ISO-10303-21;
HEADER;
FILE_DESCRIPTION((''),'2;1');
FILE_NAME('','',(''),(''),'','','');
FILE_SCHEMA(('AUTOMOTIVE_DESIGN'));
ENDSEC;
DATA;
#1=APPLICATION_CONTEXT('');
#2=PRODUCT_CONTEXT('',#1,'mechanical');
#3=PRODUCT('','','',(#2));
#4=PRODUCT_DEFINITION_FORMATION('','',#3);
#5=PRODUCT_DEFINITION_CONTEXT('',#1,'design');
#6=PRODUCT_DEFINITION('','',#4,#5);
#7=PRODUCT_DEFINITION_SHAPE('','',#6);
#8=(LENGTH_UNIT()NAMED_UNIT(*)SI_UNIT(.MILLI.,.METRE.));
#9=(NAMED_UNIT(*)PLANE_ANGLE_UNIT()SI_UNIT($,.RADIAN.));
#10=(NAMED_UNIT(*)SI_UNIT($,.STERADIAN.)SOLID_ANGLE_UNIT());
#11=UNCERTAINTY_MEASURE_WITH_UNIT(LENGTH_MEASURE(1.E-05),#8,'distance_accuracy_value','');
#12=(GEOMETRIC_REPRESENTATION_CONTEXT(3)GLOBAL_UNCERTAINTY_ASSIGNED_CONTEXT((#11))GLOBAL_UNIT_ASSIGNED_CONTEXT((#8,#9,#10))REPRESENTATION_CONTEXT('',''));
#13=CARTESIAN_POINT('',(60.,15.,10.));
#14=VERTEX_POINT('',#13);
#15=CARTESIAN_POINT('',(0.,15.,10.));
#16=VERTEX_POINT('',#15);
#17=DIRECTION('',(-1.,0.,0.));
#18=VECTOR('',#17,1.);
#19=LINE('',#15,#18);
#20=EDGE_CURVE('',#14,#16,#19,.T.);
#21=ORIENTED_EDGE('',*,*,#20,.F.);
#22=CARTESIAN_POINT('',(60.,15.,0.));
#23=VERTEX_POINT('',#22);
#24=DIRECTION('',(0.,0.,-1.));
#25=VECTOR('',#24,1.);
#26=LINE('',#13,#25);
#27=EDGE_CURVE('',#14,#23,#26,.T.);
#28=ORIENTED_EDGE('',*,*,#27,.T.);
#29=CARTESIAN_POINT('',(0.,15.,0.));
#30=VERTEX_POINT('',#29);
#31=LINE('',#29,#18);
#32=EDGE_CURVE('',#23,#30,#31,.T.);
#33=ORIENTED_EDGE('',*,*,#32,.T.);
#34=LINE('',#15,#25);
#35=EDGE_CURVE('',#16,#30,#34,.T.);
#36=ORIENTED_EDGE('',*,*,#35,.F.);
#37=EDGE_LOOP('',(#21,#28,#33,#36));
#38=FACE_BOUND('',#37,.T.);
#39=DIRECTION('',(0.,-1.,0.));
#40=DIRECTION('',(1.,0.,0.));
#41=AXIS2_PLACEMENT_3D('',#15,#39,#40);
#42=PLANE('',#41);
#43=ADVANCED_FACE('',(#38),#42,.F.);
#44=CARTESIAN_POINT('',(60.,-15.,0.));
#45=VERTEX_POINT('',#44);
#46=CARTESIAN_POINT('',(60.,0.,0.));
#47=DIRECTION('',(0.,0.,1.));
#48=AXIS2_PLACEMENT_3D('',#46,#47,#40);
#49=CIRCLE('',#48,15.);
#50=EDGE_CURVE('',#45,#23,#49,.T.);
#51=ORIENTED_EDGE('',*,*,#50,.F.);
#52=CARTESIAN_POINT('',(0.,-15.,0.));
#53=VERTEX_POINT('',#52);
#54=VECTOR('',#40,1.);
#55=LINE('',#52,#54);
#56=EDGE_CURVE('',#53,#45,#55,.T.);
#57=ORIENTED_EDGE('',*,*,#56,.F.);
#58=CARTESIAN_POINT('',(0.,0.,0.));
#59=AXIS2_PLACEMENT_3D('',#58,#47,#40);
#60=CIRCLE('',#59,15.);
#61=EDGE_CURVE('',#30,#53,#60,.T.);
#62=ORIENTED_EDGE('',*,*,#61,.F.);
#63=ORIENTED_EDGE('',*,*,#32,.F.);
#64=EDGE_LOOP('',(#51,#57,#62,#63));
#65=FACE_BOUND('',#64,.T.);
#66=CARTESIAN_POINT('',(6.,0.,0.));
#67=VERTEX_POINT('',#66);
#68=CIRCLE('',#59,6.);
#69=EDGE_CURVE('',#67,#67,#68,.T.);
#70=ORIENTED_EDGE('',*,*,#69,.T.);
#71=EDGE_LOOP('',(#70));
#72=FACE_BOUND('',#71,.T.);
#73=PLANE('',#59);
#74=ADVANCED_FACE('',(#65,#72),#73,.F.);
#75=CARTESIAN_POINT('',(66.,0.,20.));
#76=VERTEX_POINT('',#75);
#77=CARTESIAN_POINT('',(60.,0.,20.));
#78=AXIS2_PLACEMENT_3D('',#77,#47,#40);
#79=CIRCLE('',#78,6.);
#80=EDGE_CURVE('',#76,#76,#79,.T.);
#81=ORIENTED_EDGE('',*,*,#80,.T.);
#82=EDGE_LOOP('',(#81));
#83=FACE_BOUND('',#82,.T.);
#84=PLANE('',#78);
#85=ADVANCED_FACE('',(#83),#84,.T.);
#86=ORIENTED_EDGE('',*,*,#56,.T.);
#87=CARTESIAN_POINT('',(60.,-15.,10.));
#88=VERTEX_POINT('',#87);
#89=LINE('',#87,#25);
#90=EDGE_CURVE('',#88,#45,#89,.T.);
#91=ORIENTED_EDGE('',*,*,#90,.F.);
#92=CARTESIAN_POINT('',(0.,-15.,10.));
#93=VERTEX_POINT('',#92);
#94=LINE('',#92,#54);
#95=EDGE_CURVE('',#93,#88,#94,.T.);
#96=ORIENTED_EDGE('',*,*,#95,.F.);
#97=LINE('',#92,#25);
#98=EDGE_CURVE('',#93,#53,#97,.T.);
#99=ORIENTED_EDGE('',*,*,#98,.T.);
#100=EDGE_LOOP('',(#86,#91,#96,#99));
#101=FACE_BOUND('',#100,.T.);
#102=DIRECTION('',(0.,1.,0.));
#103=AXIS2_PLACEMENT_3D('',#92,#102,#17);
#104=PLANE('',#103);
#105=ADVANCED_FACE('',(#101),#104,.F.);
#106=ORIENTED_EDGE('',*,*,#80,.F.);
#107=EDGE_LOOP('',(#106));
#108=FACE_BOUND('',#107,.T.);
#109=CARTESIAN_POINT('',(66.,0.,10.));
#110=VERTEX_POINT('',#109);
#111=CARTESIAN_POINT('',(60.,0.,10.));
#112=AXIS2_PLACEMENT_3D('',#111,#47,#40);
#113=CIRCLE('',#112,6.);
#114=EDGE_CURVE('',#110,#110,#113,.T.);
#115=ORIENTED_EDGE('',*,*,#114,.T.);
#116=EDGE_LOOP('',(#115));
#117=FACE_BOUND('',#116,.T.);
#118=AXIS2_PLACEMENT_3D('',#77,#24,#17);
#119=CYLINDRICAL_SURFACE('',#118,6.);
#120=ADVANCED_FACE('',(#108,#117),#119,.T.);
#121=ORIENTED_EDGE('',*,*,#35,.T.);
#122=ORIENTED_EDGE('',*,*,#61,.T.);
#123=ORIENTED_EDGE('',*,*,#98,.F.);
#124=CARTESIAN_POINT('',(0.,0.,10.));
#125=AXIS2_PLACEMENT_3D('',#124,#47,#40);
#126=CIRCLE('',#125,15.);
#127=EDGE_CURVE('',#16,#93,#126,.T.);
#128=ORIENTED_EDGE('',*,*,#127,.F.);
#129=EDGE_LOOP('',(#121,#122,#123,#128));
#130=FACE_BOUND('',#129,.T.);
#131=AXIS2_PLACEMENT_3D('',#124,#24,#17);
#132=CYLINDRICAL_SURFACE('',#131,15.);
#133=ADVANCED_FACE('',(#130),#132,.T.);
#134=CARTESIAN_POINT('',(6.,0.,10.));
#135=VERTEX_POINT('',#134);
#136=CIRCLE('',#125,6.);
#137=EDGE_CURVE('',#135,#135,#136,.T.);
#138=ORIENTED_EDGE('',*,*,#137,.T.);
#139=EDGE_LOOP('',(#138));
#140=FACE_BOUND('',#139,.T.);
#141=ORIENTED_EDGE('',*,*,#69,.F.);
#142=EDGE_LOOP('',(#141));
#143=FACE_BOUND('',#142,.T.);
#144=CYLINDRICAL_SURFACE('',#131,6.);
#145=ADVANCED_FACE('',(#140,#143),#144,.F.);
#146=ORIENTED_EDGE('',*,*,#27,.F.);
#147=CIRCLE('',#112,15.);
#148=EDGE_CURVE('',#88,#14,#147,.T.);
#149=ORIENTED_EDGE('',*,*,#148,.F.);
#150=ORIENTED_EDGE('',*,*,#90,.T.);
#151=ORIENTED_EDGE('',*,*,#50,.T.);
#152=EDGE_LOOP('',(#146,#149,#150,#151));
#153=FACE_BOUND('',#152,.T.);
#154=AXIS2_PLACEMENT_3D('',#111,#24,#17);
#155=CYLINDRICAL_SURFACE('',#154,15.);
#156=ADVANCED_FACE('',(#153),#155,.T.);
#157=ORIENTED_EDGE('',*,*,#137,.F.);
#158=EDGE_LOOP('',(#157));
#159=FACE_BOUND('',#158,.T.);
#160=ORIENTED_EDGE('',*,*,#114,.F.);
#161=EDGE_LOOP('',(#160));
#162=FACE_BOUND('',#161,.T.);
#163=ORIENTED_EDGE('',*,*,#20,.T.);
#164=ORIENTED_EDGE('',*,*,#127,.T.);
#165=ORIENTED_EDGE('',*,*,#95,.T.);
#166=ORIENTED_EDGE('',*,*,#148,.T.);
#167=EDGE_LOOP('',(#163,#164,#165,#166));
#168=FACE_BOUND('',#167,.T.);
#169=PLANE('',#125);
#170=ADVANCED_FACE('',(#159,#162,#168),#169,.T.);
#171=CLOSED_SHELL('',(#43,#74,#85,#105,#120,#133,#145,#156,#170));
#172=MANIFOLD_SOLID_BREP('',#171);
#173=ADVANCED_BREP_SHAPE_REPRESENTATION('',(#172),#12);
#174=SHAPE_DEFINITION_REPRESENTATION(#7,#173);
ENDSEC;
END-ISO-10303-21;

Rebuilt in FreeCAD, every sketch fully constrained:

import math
import FreeCAD as App
import Part
import Sketcher

doc = App.newDocument("Part")
body = doc.addObject("PartDesign::Body", "Body")

# Sketch on XY plane
sketch1 = body.newObject("Sketcher::SketchObject", "Sketch")
sketch1.AttachmentSupport = (doc.getObject("XY_Plane"), [""])
sketch1.MapMode = "FlatFace"
sketch1.addGeometry([
    Part.LineSegment(App.Vector(60, 15, 0), App.Vector(0, 15, 0)),  # 0
    Part.ArcOfCircle(Part.Circle(App.Vector(0, 0, 0), App.Vector(0, 0, 1), 15), math.radians(90), math.radians(270)),  # 1
    Part.LineSegment(App.Vector(0, -15, 0), App.Vector(60, -15, 0)),  # 2
    Part.ArcOfCircle(Part.Circle(App.Vector(60, 0, 0), App.Vector(0, 0, 1), 15), math.radians(-90), math.radians(90)),  # 3
    Part.Circle(App.Vector(0, 0, 0), App.Vector(0, 0, 1), 6),  # 4
], False)
sketch1.addConstraint([
    Sketcher.Constraint("Tangent", 0, 2, 1, 1),
    Sketcher.Constraint("Tangent", 1, 2, 2, 1),
    Sketcher.Constraint("Tangent", 2, 2, 3, 1),
    Sketcher.Constraint("Tangent", 3, 2, 0, 1),
    Sketcher.Constraint("Horizontal", 0),
    Sketcher.Constraint("Horizontal", 2),
    Sketcher.Constraint("Coincident", 1, 3, -1, 1),
    Sketcher.Constraint("Coincident", 4, 3, -1, 1),
    Sketcher.Constraint("Diameter", 4, 12.0),
    Sketcher.Constraint("Radius", 1, 15.0),
    Sketcher.Constraint("DistanceX", 0, 2, 0, 1, 60.0),
])
pad1 = body.newObject("PartDesign::Pad", "Pad")
pad1.Profile = sketch1
pad1.Length = 10

# Sketch on XY plane
sketch2 = body.newObject("Sketcher::SketchObject", "Sketch001")
sketch2.AttachmentSupport = (doc.getObject("XY_Plane"), [""])
sketch2.MapMode = "FlatFace"
sketch2.AttachmentOffset = App.Placement(App.Vector(0, 0, 10), App.Rotation())
sketch2.addGeometry(Part.Circle(App.Vector(60, 0, 0), App.Vector(0, 0, 1), 6), False)
sketch2.addConstraint([
    Sketcher.Constraint("PointOnObject", 0, 3, -1),
    Sketcher.Constraint("Diameter", 0, 12.0),
    Sketcher.Constraint("DistanceX", -1, 1, 0, 3, 60.0),
])
pad2 = body.newObject("PartDesign::Pad", "Pad001")
pad2.Profile = sketch2
pad2.Length = 10

doc.recompute()
